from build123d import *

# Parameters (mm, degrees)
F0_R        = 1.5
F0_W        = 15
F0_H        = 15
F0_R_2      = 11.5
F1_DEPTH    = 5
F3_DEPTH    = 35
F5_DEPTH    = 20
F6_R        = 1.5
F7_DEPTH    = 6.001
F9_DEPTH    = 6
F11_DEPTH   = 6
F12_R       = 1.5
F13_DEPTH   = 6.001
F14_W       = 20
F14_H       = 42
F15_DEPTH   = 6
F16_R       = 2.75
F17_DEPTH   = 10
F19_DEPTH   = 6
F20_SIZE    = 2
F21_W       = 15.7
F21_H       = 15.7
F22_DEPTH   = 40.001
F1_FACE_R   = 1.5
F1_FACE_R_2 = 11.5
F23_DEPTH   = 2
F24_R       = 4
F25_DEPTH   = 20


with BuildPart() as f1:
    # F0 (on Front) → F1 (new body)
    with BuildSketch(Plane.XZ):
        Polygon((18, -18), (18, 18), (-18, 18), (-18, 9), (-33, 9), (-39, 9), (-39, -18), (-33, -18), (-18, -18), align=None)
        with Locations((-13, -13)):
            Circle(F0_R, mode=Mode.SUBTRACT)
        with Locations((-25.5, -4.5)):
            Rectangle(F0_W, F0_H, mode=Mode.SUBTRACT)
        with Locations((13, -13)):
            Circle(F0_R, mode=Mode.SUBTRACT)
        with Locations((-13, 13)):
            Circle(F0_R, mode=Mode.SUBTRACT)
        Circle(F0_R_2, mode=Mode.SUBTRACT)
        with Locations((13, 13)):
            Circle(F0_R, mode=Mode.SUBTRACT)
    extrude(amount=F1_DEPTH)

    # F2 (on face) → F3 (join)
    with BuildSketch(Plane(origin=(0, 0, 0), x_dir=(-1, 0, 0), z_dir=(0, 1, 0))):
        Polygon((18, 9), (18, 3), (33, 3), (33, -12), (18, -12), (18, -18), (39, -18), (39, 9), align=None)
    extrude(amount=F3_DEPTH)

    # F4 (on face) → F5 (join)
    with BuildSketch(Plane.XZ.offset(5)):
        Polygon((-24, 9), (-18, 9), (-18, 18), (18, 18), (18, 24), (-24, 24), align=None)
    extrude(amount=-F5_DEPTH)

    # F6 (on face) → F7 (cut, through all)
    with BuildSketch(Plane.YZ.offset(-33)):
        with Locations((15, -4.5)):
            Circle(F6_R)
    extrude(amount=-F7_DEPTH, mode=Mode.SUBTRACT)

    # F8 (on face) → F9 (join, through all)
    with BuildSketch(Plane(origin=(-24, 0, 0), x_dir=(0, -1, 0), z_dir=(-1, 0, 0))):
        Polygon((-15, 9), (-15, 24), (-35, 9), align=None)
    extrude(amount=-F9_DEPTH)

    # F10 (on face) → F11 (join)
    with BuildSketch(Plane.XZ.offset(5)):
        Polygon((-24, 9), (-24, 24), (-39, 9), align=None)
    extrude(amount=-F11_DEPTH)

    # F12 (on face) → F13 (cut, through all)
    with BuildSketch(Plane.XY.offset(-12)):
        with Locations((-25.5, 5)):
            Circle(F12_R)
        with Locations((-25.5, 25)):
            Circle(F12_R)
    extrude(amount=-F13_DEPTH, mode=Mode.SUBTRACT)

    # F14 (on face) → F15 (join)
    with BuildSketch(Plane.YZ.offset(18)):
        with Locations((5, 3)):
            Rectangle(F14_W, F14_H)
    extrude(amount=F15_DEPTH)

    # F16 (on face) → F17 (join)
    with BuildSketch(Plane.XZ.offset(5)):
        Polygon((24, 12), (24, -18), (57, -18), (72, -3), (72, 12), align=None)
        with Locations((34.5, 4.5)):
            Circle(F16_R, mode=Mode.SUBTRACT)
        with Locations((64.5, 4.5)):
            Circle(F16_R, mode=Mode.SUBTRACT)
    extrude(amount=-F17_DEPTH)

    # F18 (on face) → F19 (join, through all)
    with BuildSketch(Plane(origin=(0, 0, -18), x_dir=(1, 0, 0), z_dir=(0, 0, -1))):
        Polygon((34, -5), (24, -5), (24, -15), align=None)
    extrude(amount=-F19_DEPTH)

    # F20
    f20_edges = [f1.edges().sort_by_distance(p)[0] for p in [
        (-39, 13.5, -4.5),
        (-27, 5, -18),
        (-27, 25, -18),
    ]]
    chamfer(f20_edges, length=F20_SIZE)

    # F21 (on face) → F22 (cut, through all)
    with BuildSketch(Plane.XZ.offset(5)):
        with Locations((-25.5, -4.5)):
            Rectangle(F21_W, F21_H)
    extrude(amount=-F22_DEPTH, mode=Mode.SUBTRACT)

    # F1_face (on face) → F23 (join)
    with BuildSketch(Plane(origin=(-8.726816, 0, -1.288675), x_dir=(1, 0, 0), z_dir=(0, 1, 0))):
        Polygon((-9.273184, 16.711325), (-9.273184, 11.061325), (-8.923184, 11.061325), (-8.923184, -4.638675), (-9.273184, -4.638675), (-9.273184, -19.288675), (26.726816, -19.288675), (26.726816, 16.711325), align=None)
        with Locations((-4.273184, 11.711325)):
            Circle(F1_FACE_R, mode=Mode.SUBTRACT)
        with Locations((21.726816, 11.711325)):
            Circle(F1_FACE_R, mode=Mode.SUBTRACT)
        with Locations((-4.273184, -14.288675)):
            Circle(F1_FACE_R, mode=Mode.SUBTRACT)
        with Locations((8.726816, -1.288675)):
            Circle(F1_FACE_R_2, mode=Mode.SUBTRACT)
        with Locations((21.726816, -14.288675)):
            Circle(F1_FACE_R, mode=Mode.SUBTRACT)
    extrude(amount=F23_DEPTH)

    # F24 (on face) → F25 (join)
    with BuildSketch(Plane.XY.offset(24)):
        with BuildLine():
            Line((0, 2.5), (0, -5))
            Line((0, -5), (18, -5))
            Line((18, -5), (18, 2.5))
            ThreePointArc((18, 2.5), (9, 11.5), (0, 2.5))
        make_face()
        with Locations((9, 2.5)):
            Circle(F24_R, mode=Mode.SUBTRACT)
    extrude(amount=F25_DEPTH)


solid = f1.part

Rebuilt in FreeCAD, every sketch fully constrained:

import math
import FreeCAD as App
import Part
import Sketcher

V = App.Vector


def edges_at(feature, points):
    """Names of the edges that pass closest to the given points."""
    edges = feature.Shape.Edges
    near = lambda p: min(range(len(edges)), key=lambda i: edges[i].distToShape(Part.Vertex(*p))[0])
    return sorted({f"Edge{near(p) + 1}" for p in points})

doc = App.newDocument("Part")
body = doc.addObject("PartDesign::Body", "Body")

# Sketch on XZ plane
sketch1 = body.newObject("Sketcher::SketchObject", "Sketch")
sketch1.AttachmentSupport = (doc.getObject("XZ_Plane"), [""])
sketch1.MapMode = "FlatFace"
sketch1.addGeometry(Part.LineSegment(V(18, -18, 0), V(18, 18, 0)), False)
sketch1.addGeometry(Part.LineSegment(V(18, 18, 0), V(-18, 18, 0)), False)
sketch1.addGeometry(Part.LineSegment(V(-18, 18, 0), V(-18, 9, 0)), False)
sketch1.addGeometry(Part.LineSegment(V(-18, 9, 0), V(-39, 9, 0)), False)
sketch1.addGeometry(Part.LineSegment(V(-39, 9, 0), V(-39, -18, 0)), False)
sketch1.addGeometry(Part.LineSegment(V(-39, -18, 0), V(18, -18, 0)), False)
sketch1.addGeometry(Part.Circle(V(-13, -13, 0), V(0, 0, 1), 1.5), False)
sketch1.addGeometry(Part.LineSegment(V(-18, -12, 0), V(-33, -12, 0)), False)
sketch1.addGeometry(Part.LineSegment(V(-33, -12, 0), V(-33, 3, 0)), False)
sketch1.addGeometry(Part.LineSegment(V(-33, 3, 0), V(-18, 3, 0)), False)
sketch1.addGeometry(Part.LineSegment(V(-18, 3, 0), V(-18, -12, 0)), False)
sketch1.addGeometry(Part.Circle(V(13, -13, 0), V(0, 0, 1), 1.5), False)
sketch1.addGeometry(Part.Circle(V(-13, 13, 0), V(0, 0, 1), 1.5), False)
sketch1.addGeometry(Part.Circle(V(0, 0, 0), V(0, 0, 1), 11.5), False)
sketch1.addGeometry(Part.Circle(V(13, 13, 0), V(0, 0, 1), 1.5), False)
sketch1.addConstraint(Sketcher.Constraint("Coincident", 0, 2, 1, 1))
sketch1.addConstraint(Sketcher.Constraint("Coincident", 1, 2, 2, 1))
sketch1.addConstraint(Sketcher.Constraint("Coincident", 2, 2, 3, 1))
sketch1.addConstraint(Sketcher.Constraint("Coincident", 3, 2, 4, 1))
sketch1.addConstraint(Sketcher.Constraint("Coincident", 4, 2, 5, 1))
sketch1.addConstraint(Sketcher.Constraint("Coincident", 5, 2, 0, 1))
sketch1.addConstraint(Sketcher.Constraint("Coincident", 7, 2, 8, 1))
sketch1.addConstraint(Sketcher.Constraint("Coincident", 8, 2, 9, 1))
sketch1.addConstraint(Sketcher.Constraint("Coincident", 9, 2, 10, 1))
sketch1.addConstraint(Sketcher.Constraint("Coincident", 10, 2, 7, 1))
sketch1.addConstraint(Sketcher.Constraint("Vertical", 0))
sketch1.addConstraint(Sketcher.Constraint("Horizontal", 1))
sketch1.addConstraint(Sketcher.Constraint("Vertical", 2))
sketch1.addConstraint(Sketcher.Constraint("Horizontal", 3))
sketch1.addConstraint(Sketcher.Constraint("Vertical", 4))
sketch1.addConstraint(Sketcher.Constraint("Horizontal", 5))
sketch1.addConstraint(Sketcher.Constraint("Horizontal", 7))
sketch1.addConstraint(Sketcher.Constraint("Vertical", 8))
sketch1.addConstraint(Sketcher.Constraint("Horizontal", 9))
sketch1.addConstraint(Sketcher.Constraint("Vertical", 10))
sketch1.addConstraint(Sketcher.Constraint("Coincident", 13, 3, -1, 1))
sketch1.addConstraint(Sketcher.Constraint("Equal", 6, 11))
sketch1.addConstraint(Sketcher.Constraint("Equal", 11, 12))
sketch1.addConstraint(Sketcher.Constraint("Equal", 12, 14))
sketch1.addConstraint(Sketcher.Constraint("Symmetric", 11, 3, 12, 3, -1, 1))
sketch1.addConstraint(Sketcher.Constraint("Symmetric", 6, 3, 14, 3, -1, 1))
sketch1.addConstraint(Sketcher.Constraint("Symmetric", 1, 2, 5, 2, -1, 1))
sketch1.addConstraint(Sketcher.Constraint("Symmetric", 6, 3, 11, 3, -2))
sketch1.addConstraint(Sketcher.Constraint("Vertical", 2, 2, 9, 2))
sketch1.addConstraint(Sketcher.Constraint("Equal", 1, 0))
sketch1.addConstraint(Sketcher.Constraint("Equal", 9, 8))
sketch1.addConstraint(Sketcher.Constraint("Diameter", 6, 3.0))
sketch1.addConstraint(Sketcher.Constraint("Diameter", 13, 23.0))
sketch1.addConstraint(Sketcher.Constraint("DistanceX", 1, 2, 1, 1, 36.0))
sketch1.addConstraint(Sketcher.Constraint("DistanceX", 3, 2, 3, 1, 21.0))
sketch1.addConstraint(Sketcher.Constraint("DistanceX", 7, 2, 7, 1, 15.0))
sketch1.addConstraint(Sketcher.Constraint("DistanceY", 2, 2, 2, 1, 9.0))
sketch1.addConstraint(Sketcher.Constraint("DistanceX", 6, 3, -1, 1, 13.0))
sketch1.addConstraint(Sketcher.Constraint("DistanceY", 6, 3, -1, 1, 13.0))
sketch1.addConstraint(Sketcher.Constraint("DistanceY", 7, 2, -1, 1, 12.0))
pad1 = body.newObject("PartDesign::Pad", "Pad")
pad1.Profile = sketch1
pad1.Length = 5

# Sketch on XZ plane
sketch2 = body.newObject("Sketcher::SketchObject", "Sketch001")
sketch2.AttachmentSupport = (doc.getObject("XZ_Plane"), [""])
sketch2.MapMode = "FlatFace"
sketch2.addGeometry(Part.LineSegment(V(-18, 9, 0), V(-18, 3, 0)), False)
sketch2.addGeometry(Part.LineSegment(V(-18, 3, 0), V(-33, 3, 0)), False)
sketch2.addGeometry(Part.LineSegment(V(-33, 3, 0), V(-33, -12, 0)), False)
sketch2.addGeometry(Part.LineSegment(V(-33, -12, 0), V(-18, -12, 0)), False)
sketch2.addGeometry(Part.LineSegment(V(-18, -12, 0), V(-18, -18, 0)), False)
sketch2.addGeometry(Part.LineSegment(V(-18, -18, 0), V(-39, -18, 0)), False)
sketch2.addGeometry(Part.LineSegment(V(-39, -18, 0), V(-39, 9, 0)), False)
sketch2.addGeometry(Part.LineSegment(V(-39, 9, 0), V(-18, 9, 0)), False)
sketch2.addConstraint(Sketcher.Constraint("Coincident", 0, 2, 1, 1))
sketch2.addConstraint(Sketcher.Constraint("Coincident", 1, 2, 2, 1))
sketch2.addConstraint(Sketcher.Constraint("Coincident", 2, 2, 3, 1))
sketch2.addConstraint(Sketcher.Constraint("Coincident", 3, 2, 4, 1))
sketch2.addConstraint(Sketcher.Constraint("Coincident", 4, 2, 5, 1))
sketch2.addConstraint(Sketcher.Constraint("Coincident", 5, 2, 6, 1))
sketch2.addConstraint(Sketcher.Constraint("Coincident", 6, 2, 7, 1))
sketch2.addConstraint(Sketcher.Constraint("Coincident", 7, 2, 0, 1))
sketch2.addConstraint(Sketcher.Constraint("Vertical", 0))
sketch2.addConstraint(Sketcher.Constraint("Horizontal", 1))
sketch2.addConstraint(Sketcher.Constraint("Vertical", 2))
sketch2.addConstraint(Sketcher.Constraint("Horizontal", 3))
sketch2.addConstraint(Sketcher.Constraint("Vertical", 4))
sketch2.addConstraint(Sketcher.Constraint("Horizontal", 5))
sketch2.addConstraint(Sketcher.Constraint("Vertical", 6))
sketch2.addConstraint(Sketcher.Constraint("Horizontal", 7))
sketch2.addConstraint(Sketcher.Constraint("Vertical", 0, 2, 3, 2))
sketch2.addConstraint(Sketcher.Constraint("Equal", 3, 2))
sketch2.addConstraint(Sketcher.Constraint("Equal", 0, 4))
sketch2.addConstraint(Sketcher.Constraint("DistanceX", 1, 2, 1, 1, 15.0))
sketch2.addConstraint(Sketcher.Constraint("DistanceX", 5, 2, 5, 1, 21.0))
sketch2.addConstraint(Sketcher.Constraint("DistanceY", 0, 2, 0, 1, 6.0))
sketch2.addConstraint(Sketcher.Constraint("DistanceX", 0, 2, -1, 1, 18.0))
sketch2.addConstraint(Sketcher.Constraint("DistanceY", -1, 1, 0, 2, 3.0))
pad2 = body.newObject("PartDesign::Pad", "Pad001")
pad2.Profile = sketch2
pad2.Length = 35
pad2.Reversed = True

# Sketch on XZ plane
sketch3 = body.newObject("Sketcher::SketchObject", "Sketch002")
sketch3.AttachmentSupport = (doc.getObject("XZ_Plane"), [""])
sketch3.MapMode = "FlatFace"
sketch3.AttachmentOffset = App.Placement(V(0, 0, 5), App.Rotation())
sketch3.addGeometry(Part.LineSegment(V(-24, 9, 0), V(-18, 9, 0)), False)
sketch3.addGeometry(Part.LineSegment(V(-18, 9, 0), V(-18, 18, 0)), False)
sketch3.addGeometry(Part.LineSegment(V(-18, 18, 0), V(18, 18, 0)), False)
sketch3.addGeometry(Part.LineSegment(V(18, 18, 0), V(18, 24, 0)), False)
sketch3.addGeometry(Part.LineSegment(V(18, 24, 0), V(-24, 24, 0)), False)
sketch3.addGeometry(Part.LineSegment(V(-24, 24, 0), V(-24, 9, 0)), False)
sketch3.addConstraint(Sketcher.Constraint("Coincident", 0, 2, 1, 1))
sketch3.addConstraint(Sketcher.Constraint("Coincident", 1, 2, 2, 1))
sketch3.addConstraint(Sketcher.Constraint("Coincident", 2, 2, 3, 1))
sketch3.addConstraint(Sketcher.Constraint("Coincident", 3, 2, 4, 1))
sketch3.addConstraint(Sketcher.Constraint("Coincident", 4, 2, 5, 1))
sketch3.addConstraint(Sketcher.Constraint("Coincident", 5, 2, 0, 1))
sketch3.addConstraint(Sketcher.Constraint("Horizontal", 0))
sketch3.addConstraint(Sketcher.Constraint("Vertical", 1))
sketch3.addConstraint(Sketcher.Constraint("Horizontal", 2))
sketch3.addConstraint(Sketcher.Constraint("Vertical", 3))
sketch3.addConstraint(Sketcher.Constraint("Horizontal", 4))
sketch3.addConstraint(Sketcher.Constraint("Vertical", 5))
sketch3.addConstraint(Sketcher.Constraint("Equal", 0, 3))
sketch3.addConstraint(Sketcher.Constraint("DistanceX", 0, 1, 0, 2, 6.0))
sketch3.addConstraint(Sketcher.Constraint("DistanceX", 2, 1, 2, 2, 36.0))
sketch3.addConstraint(Sketcher.Constraint("DistanceY", 1, 1, 1, 2, 9.0))
sketch3.addConstraint(Sketcher.Constraint("DistanceX", 0, 2, -1, 1, 18.0))
sketch3.addConstraint(Sketcher.Constraint("DistanceY", -1, 1, 0, 2, 9.0))
pad3 = body.newObject("PartDesign::Pad", "Pad002")
pad3.Profile = sketch3
pad3.Length = 20
pad3.Reversed = True

# Sketch on YZ plane
sketch4 = body.newObject("Sketcher::SketchObject", "Sketch003")
sketch4.AttachmentSupport = (doc.getObject("YZ_Plane"), [""])
sketch4.MapMode = "FlatFace"
sketch4.AttachmentOffset = App.Placement(V(0, 0, -33), App.Rotation())
sketch4.addGeometry(Part.Circle(V(15, -4.5, 0), V(0, 0, 1), 1.5), False)
sketch4.addConstraint(Sketcher.Constraint("Diameter", 0, 3.0))
sketch4.addConstraint(Sketcher.Constraint("DistanceX", -1, 1, 0, 3, 15.0))
sketch4.addConstraint(Sketcher.Constraint("DistanceY", 0, 3, -1, 1, 4.5))
pocket1 = body.newObject("PartDesign::Pocket", "Pocket")
pocket1.Profile = sketch4
pocket1.Type = "ThroughAll"

# Sketch on YZ plane
sketch5 = body.newObject("Sketcher::SketchObject", "Sketch004")
sketch5.AttachmentSupport = (doc.getObject("YZ_Plane"), [""])
sketch5.MapMode = "FlatFace"
sketch5.AttachmentOffset = App.Placement(V(0, 0, -24), App.Rotation())
sketch5.addGeometry(Part.LineSegment(V(15, 9, 0), V(15, 24, 0)), False)
sketch5.addGeometry(Part.LineSegment(V(15, 24, 0), V(35, 9, 0)), False)
sketch5.addGeometry(Part.LineSegment(V(35, 9, 0), V(15, 9, 0)), False)
sketch5.addConstraint(Sketcher.Constraint("Coincident", 0, 2, 1, 1))
sketch5.addConstraint(Sketcher.Constraint("Coincident", 1, 2, 2, 1))
sketch5.addConstraint(Sketcher.Constraint("Coincident", 2, 2, 0, 1))
sketch5.addConstraint(Sketcher.Constraint("Vertical", 0))
sketch5.addConstraint(Sketcher.Constraint("Horizontal", 2))
sketch5.addConstraint(Sketcher.Constraint("DistanceX", 2, 2, 2, 1, 20.0))
sketch5.addConstraint(Sketcher.Constraint("DistanceY", 0, 1, 0, 2, 15.0))
sketch5.addConstraint(Sketcher.Constraint("DistanceX", -1, 1, 0, 2, 15.0))
sketch5.addConstraint(Sketcher.Constraint("DistanceY", -1, 1, 0, 2, 24.0))
pad4 = body.newObject("PartDesign::Pad", "Pad003")
pad4.Profile = sketch5
pad4.Length = 6

# Sketch on XZ plane
sketch6 = body.newObject("Sketcher::SketchObject", "Sketch005")
sketch6.AttachmentSupport = (doc.getObject("XZ_Plane"), [""])
sketch6.MapMode = "FlatFace"
sketch6.AttachmentOffset = App.Placement(V(0, 0, 5), App.Rotation())
sketch6.addGeometry(Part.LineSegment(V(-24, 9, 0), V(-24, 24, 0)), False)
sketch6.addGeometry(Part.LineSegment(V(-24, 24, 0), V(-39, 9, 0)), False)
sketch6.addGeometry(Part.LineSegment(V(-39, 9, 0), V(-24, 9, 0)), False)
sketch6.addConstraint(Sketcher.Constraint("Coincident", 0, 2, 1, 1))
sketch6.addConstraint(Sketcher.Constraint("Coincident", 1, 2, 2, 1))
sketch6.addConstraint(Sketcher.Constraint("Coincident", 2, 2, 0, 1))
sketch6.addConstraint(Sketcher.Constraint("Vertical", 0))
sketch6.addConstraint(Sketcher.Constraint("Horizontal", 2))
sketch6.addConstraint(Sketcher.Constraint("Equal", 2, 0))
sketch6.addConstraint(Sketcher.Constraint("DistanceX", 2, 1, 2, 2, 15.0))
sketch6.addConstraint(Sketcher.Constraint("DistanceX", 0, 2, -1, 1, 24.0))
sketch6.addConstraint(Sketcher.Constraint("DistanceY", -1, 1, 0, 2, 24.0))
pad5 = body.newObject("PartDesign::Pad", "Pad004")
pad5.Profile = sketch6
pad5.Length = 6
pad5.Reversed = True

# Sketch on XY plane
sketch7 = body.newObject("Sketcher::SketchObject", "Sketch006")
sketch7.AttachmentSupport = (doc.getObject("XY_Plane"), [""])
sketch7.MapMode = "FlatFace"
sketch7.AttachmentOffset = App.Placement(V(0, 0, -12), App.Rotation())
sketch7.addGeometry(Part.Circle(V(-25.5, 5, 0), V(0, 0, 1), 1.5), False)
sketch7.addGeometry(Part.Circle(V(-25.5, 25, 0), V(0, 0, 1), 1.5), False)
sketch7.addConstraint(Sketcher.Constraint("Equal", 0, 1))
sketch7.addConstraint(Sketcher.Constraint("Vertical", 0, 3, 1, 3))
sketch7.addConstraint(Sketcher.Constraint("Diameter", 0, 3.0))
sketch7.addConstraint(Sketcher.Constraint("DistanceY", -1, 1, 0, 3, 5.0))
sketch7.addConstraint(Sketcher.Constraint("DistanceY", -1, 1, 1, 3, 25.0))
sketch7.addConstraint(Sketcher.Constraint("DistanceX", 0, 3, -1, 1, 25.5))
pocket2 = body.newObject("PartDesign::Pocket", "Pocket001")
pocket2.Profile = sketch7
pocket2.Type = "ThroughAll"

# Sketch on YZ plane
sketch8 = body.newObject("Sketcher::SketchObject", "Sketch007")
sketch8.AttachmentSupport = (doc.getObject("YZ_Plane"), [""])
sketch8.MapMode = "FlatFace"
sketch8.AttachmentOffset = App.Placement(V(0, 0, 18), App.Rotation())
sketch8.addGeometry(Part.LineSegment(V(-5, 24, 0), V(-5, -18, 0)), False)
sketch8.addGeometry(Part.LineSegment(V(-5, -18, 0), V(15, -18, 0)), False)
sketch8.addGeometry(Part.LineSegment(V(15, -18, 0), V(15, 24, 0)), False)
sketch8.addGeometry(Part.LineSegment(V(15, 24, 0), V(-5, 24, 0)), False)
sketch8.addConstraint(Sketcher.Constraint("Coincident", 0, 2, 1, 1))
sketch8.addConstraint(Sketcher.Constraint("Coincident", 1, 2, 2, 1))
sketch8.addConstraint(Sketcher.Constraint("Coincident", 2, 2, 3, 1))
sketch8.addConstraint(Sketcher.Constraint("Coincident", 3, 2, 0, 1))
sketch8.addConstraint(Sketcher.Constraint("Vertical", 0))
sketch8.addConstraint(Sketcher.Constraint("Horizontal", 1))
sketch8.addConstraint(Sketcher.Constraint("Vertical", 2))
sketch8.addConstraint(Sketcher.Constraint("Horizontal", 3))
sketch8.addConstraint(Sketcher.Constraint("DistanceX", 1, 1, 1, 2, 20.0))
sketch8.addConstraint(Sketcher.Constraint("DistanceY", 0, 2, 0, 1, 42.0))
sketch8.addConstraint(Sketcher.Constraint("DistanceX", 0, 2, -1, 1, 5.0))
sketch8.addConstraint(Sketcher.Constraint("DistanceY", 0, 2, -1, 1, 18.0))
pad6 = body.newObject("PartDesign::Pad", "Pad005")
pad6.Profile = sketch8
pad6.Length = 6

# Sketch on XZ plane
sketch9 = body.newObject("Sketcher::SketchObject", "Sketch008")
sketch9.AttachmentSupport = (doc.getObject("XZ_Plane"), [""])
sketch9.MapMode = "FlatFace"
sketch9.AttachmentOffset = App.Placement(V(0, 0, 5), App.Rotation())
sketch9.addGeometry(Part.LineSegment(V(24, 12, 0), V(24, -18, 0)), False)
sketch9.addGeometry(Part.LineSegment(V(24, -18, 0), V(57, -18, 0)), False)
sketch9.addGeometry(Part.LineSegment(V(57, -18, 0), V(72, -3, 0)), False)
sketch9.addGeometry(Part.LineSegment(V(72, -3, 0), V(72, 12, 0)), False)
sketch9.addGeometry(Part.LineSegment(V(72, 12, 0), V(24, 12, 0)), False)
sketch9.addGeometry(Part.Circle(V(34.5, 4.5, 0), V(0, 0, 1), 2.75), False)
sketch9.addGeometry(Part.Circle(V(64.5, 4.5, 0), V(0, 0, 1), 2.75), False)
sketch9.addConstraint(Sketcher.Constraint("Coincident", 0, 2, 1, 1))
sketch9.addConstraint(Sketcher.Constraint("Coincident", 1, 2, 2, 1))
sketch9.addConstraint(Sketcher.Constraint("Coincident", 2, 2, 3, 1))
sketch9.addConstraint(Sketcher.Constraint("Coincident", 3, 2, 4, 1))
sketch9.addConstraint(Sketcher.Constraint("Coincident", 4, 2, 0, 1))
sketch9.addConstraint(Sketcher.Constraint("Vertical", 0))
sketch9.addConstraint(Sketcher.Constraint("Horizontal", 1))
sketch9.addConstraint(Sketcher.Constraint("Vertical", 3))
sketch9.addConstraint(Sketcher.Constraint("Horizontal", 4))
sketch9.addConstraint(Sketcher.Constraint("Equal", 5, 6))
sketch9.addConstraint(Sketcher.Constraint("Horizontal", 5, 3, 6, 3))
sketch9.addConstraint(Sketcher.Constraint("Diameter", 5, 5.5))
sketch9.addConstraint(Sketcher.Constraint("DistanceX", 1, 1, 1, 2, 33.0))
sketch9.addConstraint(Sketcher.Constraint("DistanceX", 4, 2, 4, 1, 48.0))
sketch9.addConstraint(Sketcher.Constraint("DistanceY", 0, 2, 0, 1, 30.0))
sketch9.addConstraint(Sketcher.Constraint("DistanceY", 3, 1, 3, 2, 15.0))
sketch9.addConstraint(Sketcher.Constraint("DistanceX", -1, 1, 0, 2, 24.0))
sketch9.addConstraint(Sketcher.Constraint("DistanceY", 0, 2, -1, 1, 18.0))
sketch9.addConstraint(Sketcher.Constraint("DistanceX", 5, 3, 6, 3, 30.0))
sketch9.addConstraint(Sketcher.Constraint("DistanceX", -1, 1, 5, 3, 34.5))
sketch9.addConstraint(Sketcher.Constraint("DistanceY", -1, 1, 5, 3, 4.5))
pad7 = body.newObject("PartDesign::Pad", "Pad006")
pad7.Profile = sketch9
pad7.Length = 10
pad7.Reversed = True

# Sketch on XY plane
sketch10 = body.newObject("Sketcher::SketchObject", "Sketch009")
sketch10.AttachmentSupport = (doc.getObject("XY_Plane"), [""])
sketch10.MapMode = "FlatFace"
sketch10.AttachmentOffset = App.Placement(V(0, 0, -18), App.Rotation())
sketch10.addGeometry(Part.LineSegment(V(34, 5, 0), V(24, 5, 0)), False)
sketch10.addGeometry(Part.LineSegment(V(24, 5, 0), V(24, 15, 0)), False)
sketch10.addGeometry(Part.LineSegment(V(24, 15, 0), V(34, 5, 0)), False)
sketch10.addConstraint(Sketcher.Constraint("Coincident", 0, 2, 1, 1))
sketch10.addConstraint(Sketcher.Constraint("Coincident", 1, 2, 2, 1))
sketch10.addConstraint(Sketcher.Constraint("Coincident", 2, 2, 0, 1))
sketch10.addConstraint(Sketcher.Constraint("Horizontal", 0))
sketch10.addConstraint(Sketcher.Constraint("Vertical", 1))
sketch10.addConstraint(Sketcher.Constraint("Equal", 0, 1))
sketch10.addConstraint(Sketcher.Constraint("DistanceX", 0, 2, 0, 1, 10.0))
sketch10.addConstraint(Sketcher.Constraint("DistanceX", -1, 1, 0, 2, 24.0))
sketch10.addConstraint(Sketcher.Constraint("DistanceY", -1, 1, 0, 2, 5.0))
pad8 = body.newObject("PartDesign::Pad", "Pad007")
pad8.Profile = sketch10
pad8.Length = 6
doc.recompute()

chamfer = body.newObject("PartDesign::Chamfer", "Chamfer")
chamfer.Base = (pad8, edges_at(pad8, [(-39, 13.5, -4.5), (-27, 5, -18), (-27, 25, -18)]))
chamfer.Size = 2

# Sketch on XZ plane
sketch11 = body.newObject("Sketcher::SketchObject", "Sketch010")
sketch11.AttachmentSupport = (doc.getObject("XZ_Plane"), [""])
sketch11.MapMode = "FlatFace"
sketch11.AttachmentOffset = App.Placement(V(0, 0, 5), App.Rotation())
sketch11.addGeometry(Part.LineSegment(V(-33.35, 3.35, 0), V(-33.35, -12.35, 0)), False)
sketch11.addGeometry(Part.LineSegment(V(-33.35, -12.35, 0), V(-17.65, -12.35, 0)), False)
sketch11.addGeometry(Part.LineSegment(V(-17.65, -12.35, 0), V(-17.65, 3.35, 0)), False)
sketch11.addGeometry(Part.LineSegment(V(-17.65, 3.35, 0), V(-33.35, 3.35, 0)), False)
sketch11.addConstraint(Sketcher.Constraint("Coincident", 0, 2, 1, 1))
sketch11.addConstraint(Sketcher.Constraint("Coincident", 1, 2, 2, 1))
sketch11.addConstraint(Sketcher.Constraint("Coincident", 2, 2, 3, 1))
sketch11.addConstraint(Sketcher.Constraint("Coincident", 3, 2, 0, 1))
sketch11.addConstraint(Sketcher.Constraint("Vertical", 0))
sketch11.addConstraint(Sketcher.Constraint("Horizontal", 1))
sketch11.addConstraint(Sketcher.Constraint("Vertical", 2))
sketch11.addConstraint(Sketcher.Constraint("Horizontal", 3))
sketch11.addConstraint(Sketcher.Constraint("Equal", 3, 0))
sketch11.addConstraint(Sketcher.Constraint("DistanceX", 1, 1, 1, 2, 15.7))
sketch11.addConstraint(Sketcher.Constraint("DistanceX", 0, 2, -1, 1, 33.35))
sketch11.addConstraint(Sketcher.Constraint("DistanceY", 0, 2, -1, 1, 12.35))
pocket3 = body.newObject("PartDesign::Pocket", "Pocket002")
pocket3.Profile = sketch11
pocket3.Type = "ThroughAll"

# Sketch on XZ plane
sketch12 = body.newObject("Sketcher::SketchObject", "Sketch011")
sketch12.AttachmentSupport = (doc.getObject("XZ_Plane"), [""])
sketch12.MapMode = "FlatFace"
sketch12.addGeometry(Part.LineSegment(V(-18, -18, 0), V(-18, -12.35, 0)), False)
sketch12.addGeometry(Part.LineSegment(V(-18, -12.35, 0), V(-17.65, -12.35, 0)), False)
sketch12.addGeometry(Part.LineSegment(V(-17.65, -12.35, 0), V(-17.65, 3.35, 0)), False)
sketch12.addGeometry(Part.LineSegment(V(-17.65, 3.35, 0), V(-18, 3.35, 0)), False)
sketch12.addGeometry(Part.LineSegment(V(-18, 3.35, 0), V(-18, 18, 0)), False)
sketch12.addGeometry(Part.LineSegment(V(-18, 18, 0), V(18, 18, 0)), False)
sketch12.addGeometry(Part.LineSegment(V(18, 18, 0), V(18, -18, 0)), False)
sketch12.addGeometry(Part.LineSegment(V(18, -18, 0), V(-18, -18, 0)), False)
sketch12.addGeometry(Part.Circle(V(-13, 13, 0), V(0, 0, 1), 1.5), False)
sketch12.addGeometry(Part.Circle(V(13, 13, 0), V(0, 0, 1), 1.5), False)
sketch12.addGeometry(Part.Circle(V(-13, -13, 0), V(0, 0, 1), 1.5), False)
sketch12.addGeometry(Part.Circle(V(0, 0, 0), V(0, 0, 1), 11.5), False)
sketch12.addGeometry(Part.Circle(V(13, -13, 0), V(0, 0, 1), 1.5), False)
sketch12.addConstraint(Sketcher.Constraint("Coincident", 0, 2, 1, 1))
sketch12.addConstraint(Sketcher.Constraint("Coincident", 1, 2, 2, 1))
sketch12.addConstraint(Sketcher.Constraint("Coincident", 2, 2, 3, 1))
sketch12.addConstraint(Sketcher.Constraint("Coincident", 3, 2, 4, 1))
sketch12.addConstraint(Sketcher.Constraint("Coincident", 4, 2, 5, 1))
sketch12.addConstraint(Sketcher.Constraint("Coincident", 5, 2, 6, 1))
sketch12.addConstraint(Sketcher.Constraint("Coincident", 6, 2, 7, 1))
sketch12.addConstraint(Sketcher.Constraint("Coincident", 7, 2, 0, 1))
sketch12.addConstraint(Sketcher.Constraint("Vertical", 0))
sketch12.addConstraint(Sketcher.Constraint("Horizontal", 1))
sketch12.addConstraint(Sketcher.Constraint("Vertical", 2))
sketch12.addConstraint(Sketcher.Constraint("Horizontal", 3))
sketch12.addConstraint(Sketcher.Constraint("Vertical", 4))
sketch12.addConstraint(Sketcher.Constraint("Horizontal", 5))
sketch12.addConstraint(Sketcher.Constraint("Vertical", 6))
sketch12.addConstraint(Sketcher.Constraint("Horizontal", 7))
sketch12.addConstraint(Sketcher.Constraint("Coincident", 11, 3, -1, 1))
sketch12.addConstraint(Sketcher.Constraint("Equal", 8, 9))
sketch12.addConstraint(Sketcher.Constraint("Equal", 9, 10))
sketch12.addConstraint(Sketcher.Constraint("Equal", 10, 12))
sketch12.addConstraint(Sketcher.Constraint("Symmetric", 9, 3, 10, 3, -1, 1))
sketch12.addConstraint(Sketcher.Constraint("Symmetric", 8, 3, 12, 3, -1, 1))
sketch12.addConstraint(Sketcher.Constraint("Symmetric", 4, 2, 6, 2, -1, 1))
sketch12.addConstraint(Sketcher.Constraint("Symmetric", 8, 3, 9, 3, -2))
sketch12.addConstraint(Sketcher.Constraint("Vertical", 0, 2, 3, 2))
sketch12.addConstraint(Sketcher.Constraint("Equal", 7, 6))
sketch12.addConstraint(Sketcher.Constraint("Diameter", 8, 3.0))
sketch12.addConstraint(Sketcher.Constraint("Diameter", 11, 23.0))
sketch12.addConstraint(Sketcher.Constraint("DistanceX", 5, 1, 5, 2, 36.0))
sketch12.addConstraint(Sketcher.Constraint("DistanceY", 2, 1, 2, 2, 15.7))
sketch12.addConstraint(Sketcher.Constraint("DistanceX", 8, 3, -1, 1, 13.0))
sketch12.addConstraint(Sketcher.Constraint("DistanceY", -1, 1, 8, 3, 13.0))
sketch12.addConstraint(Sketcher.Constraint("DistanceX", 1, 1, 1, 2, 0.35))
sketch12.addConstraint(Sketcher.Constraint("DistanceY", 0, 1, 0, 2, 5.65))
pad9 = body.newObject("PartDesign::Pad", "Pad008")
pad9.Profile = sketch12
pad9.Length = 2
pad9.Reversed = True

# Sketch on XY plane
sketch13 = body.newObject("Sketcher::SketchObject", "Sketch012")
sketch13.AttachmentSupport = (doc.getObject("XY_Plane"), [""])
sketch13.MapMode = "FlatFace"
sketch13.AttachmentOffset = App.Placement(V(0, 0, 24), App.Rotation())
sketch13.addGeometry(Part.LineSegment(V(0, 2.5, 0), V(0, -5, 0)), False)
sketch13.addGeometry(Part.LineSegment(V(0, -5, 0), V(18, -5, 0)), False)
sketch13.addGeometry(Part.LineSegment(V(18, -5, 0), V(18, 2.5, 0)), False)
sketch13.addGeometry(Part.ArcOfCircle(Part.Circle(V(9, 2.5, 0), V(0, 0, 1), 9), math.radians(0), math.radians(180)), False)
sketch13.addGeometry(Part.Circle(V(9, 2.5, 0), V(0, 0, 1), 4), False)
sketch13.addConstraint(Sketcher.Constraint("Coincident", 0, 2, 1, 1))
sketch13.addConstraint(Sketcher.Constraint("Coincident", 1, 2, 2, 1))
sketch13.addConstraint(Sketcher.Constraint("Tangent", 2, 2, 3, 1))
sketch13.addConstraint(Sketcher.Constraint("Tangent", 3, 2, 0, 1))
sketch13.addConstraint(Sketcher.Constraint("Vertical", 0))
sketch13.addConstraint(Sketcher.Constraint("Horizontal", 1))
sketch13.addConstraint(Sketcher.Constraint("Vertical", 2))
sketch13.addConstraint(Sketcher.Constraint("Coincident", 4, 3, 3, 3))
sketch13.addConstraint(Sketcher.Constraint("PointOnObject", 0, 2, -2))
sketch13.addConstraint(Sketcher.Constraint("Diameter", 4, 8.0))
sketch13.addConstraint(Sketcher.Constraint("Radius", 3, 9.0))
sketch13.addConstraint(Sketcher.Constraint("DistanceY", 0, 2, 0, 1, 7.5))
sketch13.addConstraint(Sketcher.Constraint("DistanceY", 0, 2, -1, 1, 5.0))
pad10 = body.newObject("PartDesign::Pad", "Pad009")
pad10.Profile = sketch13
pad10.Length = 20

doc.recompute()
